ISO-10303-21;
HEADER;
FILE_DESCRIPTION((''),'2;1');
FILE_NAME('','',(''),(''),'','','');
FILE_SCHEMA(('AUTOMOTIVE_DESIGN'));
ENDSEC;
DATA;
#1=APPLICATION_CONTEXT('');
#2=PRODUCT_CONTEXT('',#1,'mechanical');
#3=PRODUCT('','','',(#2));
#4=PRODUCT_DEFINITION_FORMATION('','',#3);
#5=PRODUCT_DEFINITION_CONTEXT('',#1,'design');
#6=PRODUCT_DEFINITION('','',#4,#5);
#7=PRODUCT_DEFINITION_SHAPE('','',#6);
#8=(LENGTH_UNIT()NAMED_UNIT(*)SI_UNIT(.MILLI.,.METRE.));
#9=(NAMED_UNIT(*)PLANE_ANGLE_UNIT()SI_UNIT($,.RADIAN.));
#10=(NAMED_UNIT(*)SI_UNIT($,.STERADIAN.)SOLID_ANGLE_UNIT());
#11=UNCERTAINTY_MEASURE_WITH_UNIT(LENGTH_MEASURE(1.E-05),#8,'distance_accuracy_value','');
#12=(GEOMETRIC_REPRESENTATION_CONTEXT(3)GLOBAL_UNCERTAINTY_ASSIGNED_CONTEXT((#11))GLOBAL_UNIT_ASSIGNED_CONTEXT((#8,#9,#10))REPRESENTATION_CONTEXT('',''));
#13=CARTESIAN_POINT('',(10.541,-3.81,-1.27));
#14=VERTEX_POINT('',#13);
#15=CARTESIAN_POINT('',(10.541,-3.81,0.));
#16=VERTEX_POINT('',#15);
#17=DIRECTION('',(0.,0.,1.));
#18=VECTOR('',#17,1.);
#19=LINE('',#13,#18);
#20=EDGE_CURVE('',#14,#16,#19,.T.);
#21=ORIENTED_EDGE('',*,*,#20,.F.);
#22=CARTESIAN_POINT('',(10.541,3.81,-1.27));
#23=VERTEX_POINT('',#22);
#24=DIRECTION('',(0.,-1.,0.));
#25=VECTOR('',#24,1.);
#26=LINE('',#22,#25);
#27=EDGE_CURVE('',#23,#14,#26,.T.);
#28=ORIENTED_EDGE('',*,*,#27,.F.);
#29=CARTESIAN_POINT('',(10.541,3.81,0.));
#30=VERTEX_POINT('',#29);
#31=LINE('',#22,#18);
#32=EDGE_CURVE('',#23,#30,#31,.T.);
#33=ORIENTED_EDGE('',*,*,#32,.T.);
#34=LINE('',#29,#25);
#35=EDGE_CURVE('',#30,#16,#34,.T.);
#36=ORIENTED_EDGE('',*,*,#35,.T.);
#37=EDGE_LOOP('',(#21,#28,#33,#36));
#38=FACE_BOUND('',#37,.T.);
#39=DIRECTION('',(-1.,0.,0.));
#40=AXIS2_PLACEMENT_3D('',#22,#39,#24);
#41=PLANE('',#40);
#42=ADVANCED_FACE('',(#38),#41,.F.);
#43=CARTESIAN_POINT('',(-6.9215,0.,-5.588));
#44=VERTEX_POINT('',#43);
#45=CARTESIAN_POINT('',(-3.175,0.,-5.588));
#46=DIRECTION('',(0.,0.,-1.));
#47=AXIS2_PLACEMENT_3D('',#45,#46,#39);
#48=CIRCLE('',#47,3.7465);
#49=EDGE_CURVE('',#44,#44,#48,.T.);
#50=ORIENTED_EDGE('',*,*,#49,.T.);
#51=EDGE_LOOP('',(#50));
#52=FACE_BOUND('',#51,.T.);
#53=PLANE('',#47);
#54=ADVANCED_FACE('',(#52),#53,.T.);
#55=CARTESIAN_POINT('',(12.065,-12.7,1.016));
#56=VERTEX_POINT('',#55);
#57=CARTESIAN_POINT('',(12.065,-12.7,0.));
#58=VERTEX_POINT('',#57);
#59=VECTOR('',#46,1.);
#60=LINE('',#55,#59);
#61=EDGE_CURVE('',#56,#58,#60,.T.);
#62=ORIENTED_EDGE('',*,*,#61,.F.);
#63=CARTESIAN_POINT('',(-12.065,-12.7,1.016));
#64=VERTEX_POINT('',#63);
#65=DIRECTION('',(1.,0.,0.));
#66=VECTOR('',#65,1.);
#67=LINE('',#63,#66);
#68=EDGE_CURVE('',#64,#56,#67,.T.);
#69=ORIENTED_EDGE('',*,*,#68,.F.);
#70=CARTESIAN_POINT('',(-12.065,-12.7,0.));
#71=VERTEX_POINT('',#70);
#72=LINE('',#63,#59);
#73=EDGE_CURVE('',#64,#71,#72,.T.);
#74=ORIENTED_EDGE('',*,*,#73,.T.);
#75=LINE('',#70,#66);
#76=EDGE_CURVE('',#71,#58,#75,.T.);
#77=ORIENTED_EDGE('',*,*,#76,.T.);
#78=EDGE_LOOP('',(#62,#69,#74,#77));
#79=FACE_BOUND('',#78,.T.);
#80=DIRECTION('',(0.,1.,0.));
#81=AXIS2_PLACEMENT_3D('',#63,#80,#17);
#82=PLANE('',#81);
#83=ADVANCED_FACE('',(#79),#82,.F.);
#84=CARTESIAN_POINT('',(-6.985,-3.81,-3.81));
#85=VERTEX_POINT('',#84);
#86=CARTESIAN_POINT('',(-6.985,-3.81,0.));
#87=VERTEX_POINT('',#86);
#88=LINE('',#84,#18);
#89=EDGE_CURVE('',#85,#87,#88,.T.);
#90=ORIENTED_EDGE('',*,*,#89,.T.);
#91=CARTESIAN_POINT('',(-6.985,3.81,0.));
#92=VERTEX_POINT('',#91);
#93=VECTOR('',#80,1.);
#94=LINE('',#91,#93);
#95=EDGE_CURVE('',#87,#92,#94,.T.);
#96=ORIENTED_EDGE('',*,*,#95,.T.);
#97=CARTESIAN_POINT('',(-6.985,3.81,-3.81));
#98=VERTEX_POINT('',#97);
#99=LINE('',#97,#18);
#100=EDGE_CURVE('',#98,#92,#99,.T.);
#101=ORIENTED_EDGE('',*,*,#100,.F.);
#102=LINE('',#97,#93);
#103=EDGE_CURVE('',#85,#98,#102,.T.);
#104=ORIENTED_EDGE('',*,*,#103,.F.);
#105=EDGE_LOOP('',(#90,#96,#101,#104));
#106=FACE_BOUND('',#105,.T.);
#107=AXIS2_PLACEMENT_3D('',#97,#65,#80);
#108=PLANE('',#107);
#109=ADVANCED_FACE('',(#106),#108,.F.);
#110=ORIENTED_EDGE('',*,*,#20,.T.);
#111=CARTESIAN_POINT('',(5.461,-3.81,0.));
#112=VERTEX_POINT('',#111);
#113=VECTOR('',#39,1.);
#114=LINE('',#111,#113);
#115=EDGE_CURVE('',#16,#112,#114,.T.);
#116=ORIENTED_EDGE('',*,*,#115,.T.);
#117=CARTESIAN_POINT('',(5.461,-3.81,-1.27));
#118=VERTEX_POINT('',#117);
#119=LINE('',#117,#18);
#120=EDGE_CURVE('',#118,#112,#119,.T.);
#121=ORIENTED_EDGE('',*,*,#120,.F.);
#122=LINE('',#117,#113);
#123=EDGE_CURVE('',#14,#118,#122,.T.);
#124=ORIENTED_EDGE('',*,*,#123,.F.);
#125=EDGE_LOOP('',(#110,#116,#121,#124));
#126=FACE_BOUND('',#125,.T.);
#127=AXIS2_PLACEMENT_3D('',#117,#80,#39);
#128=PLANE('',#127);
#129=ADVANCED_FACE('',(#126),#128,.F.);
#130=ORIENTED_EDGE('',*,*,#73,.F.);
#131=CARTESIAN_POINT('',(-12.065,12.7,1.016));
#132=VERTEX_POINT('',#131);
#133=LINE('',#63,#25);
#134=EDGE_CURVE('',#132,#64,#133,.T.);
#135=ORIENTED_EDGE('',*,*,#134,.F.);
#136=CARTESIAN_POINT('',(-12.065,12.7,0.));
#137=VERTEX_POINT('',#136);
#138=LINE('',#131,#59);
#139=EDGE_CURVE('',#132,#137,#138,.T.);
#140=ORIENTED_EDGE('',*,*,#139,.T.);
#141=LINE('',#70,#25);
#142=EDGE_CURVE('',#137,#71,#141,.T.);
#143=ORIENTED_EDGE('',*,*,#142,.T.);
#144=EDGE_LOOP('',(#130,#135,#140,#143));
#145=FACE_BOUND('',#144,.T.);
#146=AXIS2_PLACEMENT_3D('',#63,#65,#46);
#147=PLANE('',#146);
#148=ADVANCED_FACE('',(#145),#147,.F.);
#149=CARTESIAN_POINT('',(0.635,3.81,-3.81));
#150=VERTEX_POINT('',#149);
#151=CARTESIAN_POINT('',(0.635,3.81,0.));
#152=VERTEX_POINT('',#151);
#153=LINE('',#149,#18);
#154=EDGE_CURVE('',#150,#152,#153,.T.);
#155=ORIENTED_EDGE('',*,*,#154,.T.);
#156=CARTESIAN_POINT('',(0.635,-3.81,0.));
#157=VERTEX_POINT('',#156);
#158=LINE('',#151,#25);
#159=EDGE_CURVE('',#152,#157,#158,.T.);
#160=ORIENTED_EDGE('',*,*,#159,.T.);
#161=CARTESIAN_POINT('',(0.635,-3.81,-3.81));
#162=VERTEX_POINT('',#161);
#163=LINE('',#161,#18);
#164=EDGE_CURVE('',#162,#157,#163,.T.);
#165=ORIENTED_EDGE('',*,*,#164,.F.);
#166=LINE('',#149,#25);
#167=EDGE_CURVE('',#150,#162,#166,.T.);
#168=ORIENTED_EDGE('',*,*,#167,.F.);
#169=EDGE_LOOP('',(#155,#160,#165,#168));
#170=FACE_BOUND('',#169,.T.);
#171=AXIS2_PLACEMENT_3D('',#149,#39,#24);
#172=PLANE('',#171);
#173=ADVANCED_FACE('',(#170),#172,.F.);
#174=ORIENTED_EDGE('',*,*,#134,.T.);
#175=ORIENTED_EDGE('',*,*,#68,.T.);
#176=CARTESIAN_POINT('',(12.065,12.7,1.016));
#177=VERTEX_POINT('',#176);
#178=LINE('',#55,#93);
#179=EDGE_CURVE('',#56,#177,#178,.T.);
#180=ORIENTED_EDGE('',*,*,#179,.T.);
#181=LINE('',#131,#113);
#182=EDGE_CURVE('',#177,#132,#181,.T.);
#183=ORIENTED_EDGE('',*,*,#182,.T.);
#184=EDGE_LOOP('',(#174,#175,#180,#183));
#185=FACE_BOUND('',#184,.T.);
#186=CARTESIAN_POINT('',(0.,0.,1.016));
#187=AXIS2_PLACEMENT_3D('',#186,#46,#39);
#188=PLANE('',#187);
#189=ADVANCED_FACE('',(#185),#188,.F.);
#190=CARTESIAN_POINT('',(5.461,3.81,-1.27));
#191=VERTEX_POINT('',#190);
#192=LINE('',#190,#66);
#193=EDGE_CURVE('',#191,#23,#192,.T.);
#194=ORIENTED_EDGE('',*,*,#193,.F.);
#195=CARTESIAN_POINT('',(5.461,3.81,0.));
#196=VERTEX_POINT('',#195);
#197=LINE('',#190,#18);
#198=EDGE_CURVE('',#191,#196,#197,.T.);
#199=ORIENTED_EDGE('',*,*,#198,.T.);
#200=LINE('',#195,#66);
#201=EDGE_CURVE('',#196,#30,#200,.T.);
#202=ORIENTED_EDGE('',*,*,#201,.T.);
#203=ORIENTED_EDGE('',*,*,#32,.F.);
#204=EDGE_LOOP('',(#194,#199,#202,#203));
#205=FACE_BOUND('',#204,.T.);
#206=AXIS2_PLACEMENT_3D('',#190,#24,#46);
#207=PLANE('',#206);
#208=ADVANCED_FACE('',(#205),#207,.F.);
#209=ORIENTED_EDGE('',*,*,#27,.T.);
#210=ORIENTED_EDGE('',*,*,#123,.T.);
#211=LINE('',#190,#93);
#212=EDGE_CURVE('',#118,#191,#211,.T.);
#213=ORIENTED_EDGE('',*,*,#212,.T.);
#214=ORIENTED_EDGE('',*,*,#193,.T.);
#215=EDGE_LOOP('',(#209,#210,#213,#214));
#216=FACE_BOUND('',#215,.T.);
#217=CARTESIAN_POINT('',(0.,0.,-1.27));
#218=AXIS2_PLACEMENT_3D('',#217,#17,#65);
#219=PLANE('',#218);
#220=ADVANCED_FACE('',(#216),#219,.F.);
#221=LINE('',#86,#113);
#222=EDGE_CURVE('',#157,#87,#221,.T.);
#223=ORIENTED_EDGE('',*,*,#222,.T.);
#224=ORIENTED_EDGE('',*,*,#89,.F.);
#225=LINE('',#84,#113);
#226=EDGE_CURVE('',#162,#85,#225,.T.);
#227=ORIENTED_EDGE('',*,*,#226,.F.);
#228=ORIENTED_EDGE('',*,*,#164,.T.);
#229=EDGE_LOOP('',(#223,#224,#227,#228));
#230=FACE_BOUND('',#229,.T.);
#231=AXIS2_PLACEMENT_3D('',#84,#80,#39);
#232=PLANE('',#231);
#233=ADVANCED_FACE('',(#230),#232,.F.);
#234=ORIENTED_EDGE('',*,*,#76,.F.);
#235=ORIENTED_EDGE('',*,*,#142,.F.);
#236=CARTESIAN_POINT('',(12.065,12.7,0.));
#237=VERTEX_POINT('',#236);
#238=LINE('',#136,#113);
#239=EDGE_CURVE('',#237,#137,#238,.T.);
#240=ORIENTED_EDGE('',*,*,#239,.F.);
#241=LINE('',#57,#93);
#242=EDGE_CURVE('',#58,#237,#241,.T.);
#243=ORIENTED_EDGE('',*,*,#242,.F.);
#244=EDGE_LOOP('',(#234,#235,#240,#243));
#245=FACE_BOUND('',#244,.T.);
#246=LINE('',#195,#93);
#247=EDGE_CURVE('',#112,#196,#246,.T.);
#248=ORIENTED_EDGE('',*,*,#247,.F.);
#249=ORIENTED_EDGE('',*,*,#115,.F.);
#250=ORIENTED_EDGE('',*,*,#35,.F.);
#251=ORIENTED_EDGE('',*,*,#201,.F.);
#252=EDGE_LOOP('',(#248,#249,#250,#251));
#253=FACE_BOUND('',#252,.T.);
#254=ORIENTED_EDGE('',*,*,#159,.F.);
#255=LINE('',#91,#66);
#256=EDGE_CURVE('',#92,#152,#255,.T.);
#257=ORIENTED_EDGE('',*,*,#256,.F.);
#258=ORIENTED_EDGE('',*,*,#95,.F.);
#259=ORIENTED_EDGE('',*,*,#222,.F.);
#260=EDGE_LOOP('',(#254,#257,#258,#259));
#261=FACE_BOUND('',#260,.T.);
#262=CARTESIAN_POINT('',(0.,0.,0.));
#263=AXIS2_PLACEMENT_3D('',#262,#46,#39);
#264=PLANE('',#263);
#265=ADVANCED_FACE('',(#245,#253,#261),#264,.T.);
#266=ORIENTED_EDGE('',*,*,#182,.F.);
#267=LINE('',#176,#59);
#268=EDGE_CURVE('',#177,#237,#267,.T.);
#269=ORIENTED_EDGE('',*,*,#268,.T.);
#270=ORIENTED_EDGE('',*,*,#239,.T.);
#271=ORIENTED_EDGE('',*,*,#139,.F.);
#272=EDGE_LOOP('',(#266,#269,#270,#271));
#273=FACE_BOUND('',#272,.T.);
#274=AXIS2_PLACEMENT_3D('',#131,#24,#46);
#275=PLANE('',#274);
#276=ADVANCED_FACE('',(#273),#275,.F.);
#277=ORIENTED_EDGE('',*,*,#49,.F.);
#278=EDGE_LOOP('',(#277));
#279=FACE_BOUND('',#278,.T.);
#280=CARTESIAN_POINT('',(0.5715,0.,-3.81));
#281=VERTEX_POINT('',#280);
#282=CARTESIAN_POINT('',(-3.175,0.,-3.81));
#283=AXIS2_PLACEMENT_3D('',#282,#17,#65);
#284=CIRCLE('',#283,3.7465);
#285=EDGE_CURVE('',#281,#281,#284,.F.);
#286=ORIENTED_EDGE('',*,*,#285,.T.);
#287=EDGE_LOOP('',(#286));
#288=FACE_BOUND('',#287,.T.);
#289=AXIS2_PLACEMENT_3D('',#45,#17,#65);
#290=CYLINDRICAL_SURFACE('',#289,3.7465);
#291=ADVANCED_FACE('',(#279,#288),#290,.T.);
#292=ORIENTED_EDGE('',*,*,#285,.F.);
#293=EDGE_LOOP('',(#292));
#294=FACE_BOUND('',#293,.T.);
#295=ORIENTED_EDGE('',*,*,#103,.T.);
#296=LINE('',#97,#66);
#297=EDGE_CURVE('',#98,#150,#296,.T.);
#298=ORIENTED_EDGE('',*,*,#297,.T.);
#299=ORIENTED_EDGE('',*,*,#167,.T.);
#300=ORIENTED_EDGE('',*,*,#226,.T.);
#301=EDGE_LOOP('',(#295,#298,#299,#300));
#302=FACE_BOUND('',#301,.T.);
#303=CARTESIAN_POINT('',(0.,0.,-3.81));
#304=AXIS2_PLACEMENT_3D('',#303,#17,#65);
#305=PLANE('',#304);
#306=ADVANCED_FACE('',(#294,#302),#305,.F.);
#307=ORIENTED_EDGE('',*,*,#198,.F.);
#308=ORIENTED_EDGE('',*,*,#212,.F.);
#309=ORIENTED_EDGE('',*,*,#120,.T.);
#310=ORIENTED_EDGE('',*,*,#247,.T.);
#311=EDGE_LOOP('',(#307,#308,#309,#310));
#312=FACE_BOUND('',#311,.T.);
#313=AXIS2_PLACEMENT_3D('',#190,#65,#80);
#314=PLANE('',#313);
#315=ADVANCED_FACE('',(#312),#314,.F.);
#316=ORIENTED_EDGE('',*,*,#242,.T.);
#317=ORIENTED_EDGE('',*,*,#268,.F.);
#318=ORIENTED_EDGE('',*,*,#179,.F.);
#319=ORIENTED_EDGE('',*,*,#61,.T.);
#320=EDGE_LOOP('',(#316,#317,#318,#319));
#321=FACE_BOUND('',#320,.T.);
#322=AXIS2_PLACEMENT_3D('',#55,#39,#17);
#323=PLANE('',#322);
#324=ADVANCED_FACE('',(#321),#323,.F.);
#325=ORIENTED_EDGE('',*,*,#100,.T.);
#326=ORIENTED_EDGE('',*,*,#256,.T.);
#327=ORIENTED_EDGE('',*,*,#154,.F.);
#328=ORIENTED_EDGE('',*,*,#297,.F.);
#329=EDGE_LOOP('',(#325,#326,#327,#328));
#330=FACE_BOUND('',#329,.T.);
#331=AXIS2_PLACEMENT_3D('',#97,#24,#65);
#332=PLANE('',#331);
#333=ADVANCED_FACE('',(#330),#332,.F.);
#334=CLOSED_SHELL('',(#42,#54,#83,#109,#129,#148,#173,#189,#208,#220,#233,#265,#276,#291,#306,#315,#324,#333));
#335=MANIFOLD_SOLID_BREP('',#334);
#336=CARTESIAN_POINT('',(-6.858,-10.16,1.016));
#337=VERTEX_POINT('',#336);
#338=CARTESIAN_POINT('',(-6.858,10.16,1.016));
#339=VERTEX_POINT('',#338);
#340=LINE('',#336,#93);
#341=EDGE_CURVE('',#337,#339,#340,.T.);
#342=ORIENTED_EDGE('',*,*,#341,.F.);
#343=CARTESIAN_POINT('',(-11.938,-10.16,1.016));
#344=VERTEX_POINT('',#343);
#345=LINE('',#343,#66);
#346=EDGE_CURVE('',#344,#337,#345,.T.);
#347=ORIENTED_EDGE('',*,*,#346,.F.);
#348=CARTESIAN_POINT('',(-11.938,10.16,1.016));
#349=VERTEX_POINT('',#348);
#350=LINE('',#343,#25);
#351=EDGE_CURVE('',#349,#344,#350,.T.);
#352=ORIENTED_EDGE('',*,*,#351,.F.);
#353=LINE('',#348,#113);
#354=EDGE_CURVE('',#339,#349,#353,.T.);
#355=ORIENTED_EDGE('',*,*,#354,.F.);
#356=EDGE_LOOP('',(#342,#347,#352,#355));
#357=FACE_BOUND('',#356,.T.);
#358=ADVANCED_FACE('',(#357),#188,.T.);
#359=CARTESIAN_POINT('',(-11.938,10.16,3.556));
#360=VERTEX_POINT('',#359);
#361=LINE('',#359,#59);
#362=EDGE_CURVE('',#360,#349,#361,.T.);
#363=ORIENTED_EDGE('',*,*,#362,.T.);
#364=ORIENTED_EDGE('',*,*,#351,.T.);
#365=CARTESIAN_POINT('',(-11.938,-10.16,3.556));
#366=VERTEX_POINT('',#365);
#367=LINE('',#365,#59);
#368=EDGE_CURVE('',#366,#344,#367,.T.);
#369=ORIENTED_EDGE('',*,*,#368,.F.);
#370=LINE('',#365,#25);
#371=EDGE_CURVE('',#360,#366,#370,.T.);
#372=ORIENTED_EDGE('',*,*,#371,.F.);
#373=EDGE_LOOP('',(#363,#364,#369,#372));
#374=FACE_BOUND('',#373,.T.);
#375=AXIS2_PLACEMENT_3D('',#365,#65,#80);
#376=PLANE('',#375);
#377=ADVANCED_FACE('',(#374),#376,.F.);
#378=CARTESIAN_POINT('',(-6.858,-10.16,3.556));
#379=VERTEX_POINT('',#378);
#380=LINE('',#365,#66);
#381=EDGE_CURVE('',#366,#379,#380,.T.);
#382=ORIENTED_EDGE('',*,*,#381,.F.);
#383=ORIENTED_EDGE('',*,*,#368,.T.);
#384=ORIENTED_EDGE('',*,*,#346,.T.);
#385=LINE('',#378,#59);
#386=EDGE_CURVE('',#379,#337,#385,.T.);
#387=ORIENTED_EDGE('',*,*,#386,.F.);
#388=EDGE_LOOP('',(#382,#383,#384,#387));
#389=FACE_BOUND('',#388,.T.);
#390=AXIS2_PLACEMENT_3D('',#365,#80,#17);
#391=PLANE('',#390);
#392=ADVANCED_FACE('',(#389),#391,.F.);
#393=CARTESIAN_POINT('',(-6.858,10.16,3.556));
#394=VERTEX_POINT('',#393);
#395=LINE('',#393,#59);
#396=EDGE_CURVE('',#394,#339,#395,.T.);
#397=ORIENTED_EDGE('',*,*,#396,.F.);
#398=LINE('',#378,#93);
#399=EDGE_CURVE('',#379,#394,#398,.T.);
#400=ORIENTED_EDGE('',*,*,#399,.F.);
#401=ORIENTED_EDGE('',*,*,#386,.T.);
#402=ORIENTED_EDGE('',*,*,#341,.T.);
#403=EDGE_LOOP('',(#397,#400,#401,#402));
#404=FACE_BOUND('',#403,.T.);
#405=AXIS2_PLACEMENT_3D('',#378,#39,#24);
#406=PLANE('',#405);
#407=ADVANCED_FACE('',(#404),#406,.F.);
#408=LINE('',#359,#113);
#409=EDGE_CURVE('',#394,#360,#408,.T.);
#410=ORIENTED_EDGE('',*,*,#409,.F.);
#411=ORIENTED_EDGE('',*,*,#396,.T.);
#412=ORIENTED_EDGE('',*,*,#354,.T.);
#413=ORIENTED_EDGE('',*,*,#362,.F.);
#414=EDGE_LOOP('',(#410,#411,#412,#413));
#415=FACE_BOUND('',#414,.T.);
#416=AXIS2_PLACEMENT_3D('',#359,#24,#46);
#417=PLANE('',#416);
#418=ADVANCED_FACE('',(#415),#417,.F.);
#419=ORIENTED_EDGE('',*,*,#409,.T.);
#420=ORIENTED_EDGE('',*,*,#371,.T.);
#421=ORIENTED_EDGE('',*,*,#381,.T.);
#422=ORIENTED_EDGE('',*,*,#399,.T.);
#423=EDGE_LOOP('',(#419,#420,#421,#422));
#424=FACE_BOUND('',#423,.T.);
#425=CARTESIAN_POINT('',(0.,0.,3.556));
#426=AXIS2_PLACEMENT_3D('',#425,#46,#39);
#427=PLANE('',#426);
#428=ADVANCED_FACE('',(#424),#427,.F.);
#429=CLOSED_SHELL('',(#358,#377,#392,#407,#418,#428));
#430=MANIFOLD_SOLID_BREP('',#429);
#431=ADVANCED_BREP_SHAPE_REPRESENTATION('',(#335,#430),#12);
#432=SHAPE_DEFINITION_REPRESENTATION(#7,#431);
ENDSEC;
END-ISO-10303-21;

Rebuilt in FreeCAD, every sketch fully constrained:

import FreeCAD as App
import Part
import Sketcher
from FreeCAD import Vector
Q = App.Units.Quantity


def add_polygon(sketch, points):
    """Adds a closed chain of lines whose ends are joined by coincident constraints."""
    first, n = sketch.GeometryCount, len(points)
    for a, b in zip(points, points[1:] + points[:1]):
        sketch.addGeometry(Part.LineSegment(App.Vector(*a, 0), App.Vector(*b, 0)), False)
    for i in range(n):
        sketch.addConstraint(Sketcher.Constraint("Coincident", first + i, 2, first + (i + 1) % n, 1))

doc = App.newDocument("Part")
body = doc.addObject("PartDesign::Body", "Body")

sketch1 = doc.addObject("Sketcher::SketchObject", "Sketch")
body.addObject(sketch1)
sketch1.AttachmentSupport = (doc.XY_Plane, [""])
sketch1.MapMode = "FlatFace"
add_polygon(sketch1, [(-12.065, 12.7), (-12.065, -12.7), (12.065, -12.7), (12.065, 12.7)])
sketch1.addConstraint(Sketcher.Constraint("Vertical", 0))
sketch1.addConstraint(Sketcher.Constraint("Horizontal", 1))
sketch1.addConstraint(Sketcher.Constraint("Vertical", 2))
sketch1.addConstraint(Sketcher.Constraint("Horizontal", 3))
sketch1.addConstraint(Sketcher.Constraint("Symmetric", 0, 2, 2, 2, -1, 1))
sketch1.addConstraint(Sketcher.Constraint("DistanceY", 0, 2, 0, 1, Q("1 in")))
sketch1.addConstraint(Sketcher.Constraint("DistanceX", 1, 1, 1, 2, Q("0.95 in")))
pad1 = doc.addObject("PartDesign::Pad", "Pad")
body.addObject(pad1)
pad1.Profile = sketch1
pad1.Length = Q("0.04 in")

sketch2 = doc.addObject("Sketcher::SketchObject", "Sketch001")
body.addObject(sketch2)
sketch2.AttachmentSupport = (doc.XY_Plane, [""])
sketch2.MapMode = "FlatFace"
add_polygon(sketch2, [(0.635, 3.81), (0.635, -3.81), (-6.985, -3.81), (-6.985, 3.81)])
sketch2.addConstraint(Sketcher.Constraint("Vertical", 0))
sketch2.addConstraint(Sketcher.Constraint("Horizontal", 1))
sketch2.addConstraint(Sketcher.Constraint("Vertical", 2))
sketch2.addConstraint(Sketcher.Constraint("Horizontal", 3))
sketch2.addConstraint(Sketcher.Constraint("Equal", 3, 0))
sketch2.addConstraint(Sketcher.Constraint("DistanceX", 1, 2, 1, 1, Q("0.3 in")))
sketch2.addConstraint(Sketcher.Constraint("DistanceY", 0, 2, -1, 1, Q("0.15 in")))
sketch2.addConstraint(Sketcher.Constraint("DistanceX", -1, 1, 0, 2, Q("0.025 in")))
pad2 = doc.addObject("PartDesign::Pad", "Pad001")
body.addObject(pad2)
pad2.Profile = sketch2
pad2.Length = Q("0.15 in")
pad2.Reversed = True

sketch3 = doc.addObject("Sketcher::SketchObject", "Sketch002")
body.addObject(sketch3)
sketch3.AttachmentSupport = (doc.XY_Plane, [""])
sketch3.MapMode = "FlatFace"
sketch3.AttachmentOffset = App.Placement(Vector(0, 0, -0.15 * 25.4), App.Rotation())
sketch3.addGeometry(Part.Circle(Vector(-3.175, 0, 0), Vector(0, 0, 1), 3.7465), False)
sketch3.addConstraint(Sketcher.Constraint("PointOnObject", 0, 3, -1))
sketch3.addConstraint(Sketcher.Constraint("Diameter", 0, Q("0.295 in")))
sketch3.addConstraint(Sketcher.Constraint("DistanceX", 0, 3, -1, 1, Q("0.125 in")))
pad3 = doc.addObject("PartDesign::Pad", "Pad002")
body.addObject(pad3)
pad3.Profile = sketch3
pad3.Length = Q("0.07 in")
pad3.Reversed = True

sketch4 = doc.addObject("Sketcher::SketchObject", "Sketch003")
body.addObject(sketch4)
sketch4.AttachmentSupport = (doc.XY_Plane, [""])
sketch4.MapMode = "FlatFace"
add_polygon(sketch4, [(10.541, 3.81), (10.541, -3.81), (5.461, -3.81), (5.461, 3.81)])
sketch4.addConstraint(Sketcher.Constraint("Vertical", 0))
sketch4.addConstraint(Sketcher.Constraint("Horizontal", 1))
sketch4.addConstraint(Sketcher.Constraint("Vertical", 2))
sketch4.addConstraint(Sketcher.Constraint("Horizontal", 3))
sketch4.addConstraint(Sketcher.Constraint("DistanceX", 1, 2, 1, 1, Q("0.2 in")))
sketch4.addConstraint(Sketcher.Constraint("DistanceY", 0, 2, 0, 1, Q("0.3 in")))
sketch4.addConstraint(Sketcher.Constraint("DistanceY", 0, 2, -1, 1, Q("0.15 in")))
sketch4.addConstraint(Sketcher.Constraint("DistanceX", -1, 1, 0, 2, Q("0.415 in")))
pad4 = doc.addObject("PartDesign::Pad", "Pad003")
body.addObject(pad4)
pad4.Profile = sketch4
pad4.Length = Q("0.05 in")
pad4.Reversed = True
body2 = doc.addObject("PartDesign::Body", "Body001")

sketch5 = doc.addObject("Sketcher::SketchObject", "Sketch004")
body2.addObject(sketch5)
sketch5.AttachmentSupport = (doc.getObject("XY_Plane001"), [""])
sketch5.MapMode = "FlatFace"
sketch5.AttachmentOffset = App.Placement(Vector(0, 0, 0.04 * 25.4), App.Rotation())
add_polygon(sketch5, [(-11.938, 10.16), (-11.938, -10.16), (-6.858, -10.16), (-6.858, 10.16)])
sketch5.addConstraint(Sketcher.Constraint("Vertical", 0))
sketch5.addConstraint(Sketcher.Constraint("Horizontal", 1))
sketch5.addConstraint(Sketcher.Constraint("Vertical", 2))
sketch5.addConstraint(Sketcher.Constraint("Horizontal", 3))
sketch5.addConstraint(Sketcher.Constraint("DistanceX", 1, 1, 1, 2, Q("0.2 in")))
sketch5.addConstraint(Sketcher.Constraint("DistanceY", 0, 2, 0, 1, Q("0.8 in")))
sketch5.addConstraint(Sketcher.Constraint("DistanceY", 0, 2, -1, 1, Q("0.4 in")))
sketch5.addConstraint(Sketcher.Constraint("DistanceX", 0, 2, -1, 1, Q("0.47 in")))
pad5 = doc.addObject("PartDesign::Pad", "Pad004")
body2.addObject(pad5)
pad5.Profile = sketch5
pad5.Length = Q("0.1 in")

doc.recompute()
